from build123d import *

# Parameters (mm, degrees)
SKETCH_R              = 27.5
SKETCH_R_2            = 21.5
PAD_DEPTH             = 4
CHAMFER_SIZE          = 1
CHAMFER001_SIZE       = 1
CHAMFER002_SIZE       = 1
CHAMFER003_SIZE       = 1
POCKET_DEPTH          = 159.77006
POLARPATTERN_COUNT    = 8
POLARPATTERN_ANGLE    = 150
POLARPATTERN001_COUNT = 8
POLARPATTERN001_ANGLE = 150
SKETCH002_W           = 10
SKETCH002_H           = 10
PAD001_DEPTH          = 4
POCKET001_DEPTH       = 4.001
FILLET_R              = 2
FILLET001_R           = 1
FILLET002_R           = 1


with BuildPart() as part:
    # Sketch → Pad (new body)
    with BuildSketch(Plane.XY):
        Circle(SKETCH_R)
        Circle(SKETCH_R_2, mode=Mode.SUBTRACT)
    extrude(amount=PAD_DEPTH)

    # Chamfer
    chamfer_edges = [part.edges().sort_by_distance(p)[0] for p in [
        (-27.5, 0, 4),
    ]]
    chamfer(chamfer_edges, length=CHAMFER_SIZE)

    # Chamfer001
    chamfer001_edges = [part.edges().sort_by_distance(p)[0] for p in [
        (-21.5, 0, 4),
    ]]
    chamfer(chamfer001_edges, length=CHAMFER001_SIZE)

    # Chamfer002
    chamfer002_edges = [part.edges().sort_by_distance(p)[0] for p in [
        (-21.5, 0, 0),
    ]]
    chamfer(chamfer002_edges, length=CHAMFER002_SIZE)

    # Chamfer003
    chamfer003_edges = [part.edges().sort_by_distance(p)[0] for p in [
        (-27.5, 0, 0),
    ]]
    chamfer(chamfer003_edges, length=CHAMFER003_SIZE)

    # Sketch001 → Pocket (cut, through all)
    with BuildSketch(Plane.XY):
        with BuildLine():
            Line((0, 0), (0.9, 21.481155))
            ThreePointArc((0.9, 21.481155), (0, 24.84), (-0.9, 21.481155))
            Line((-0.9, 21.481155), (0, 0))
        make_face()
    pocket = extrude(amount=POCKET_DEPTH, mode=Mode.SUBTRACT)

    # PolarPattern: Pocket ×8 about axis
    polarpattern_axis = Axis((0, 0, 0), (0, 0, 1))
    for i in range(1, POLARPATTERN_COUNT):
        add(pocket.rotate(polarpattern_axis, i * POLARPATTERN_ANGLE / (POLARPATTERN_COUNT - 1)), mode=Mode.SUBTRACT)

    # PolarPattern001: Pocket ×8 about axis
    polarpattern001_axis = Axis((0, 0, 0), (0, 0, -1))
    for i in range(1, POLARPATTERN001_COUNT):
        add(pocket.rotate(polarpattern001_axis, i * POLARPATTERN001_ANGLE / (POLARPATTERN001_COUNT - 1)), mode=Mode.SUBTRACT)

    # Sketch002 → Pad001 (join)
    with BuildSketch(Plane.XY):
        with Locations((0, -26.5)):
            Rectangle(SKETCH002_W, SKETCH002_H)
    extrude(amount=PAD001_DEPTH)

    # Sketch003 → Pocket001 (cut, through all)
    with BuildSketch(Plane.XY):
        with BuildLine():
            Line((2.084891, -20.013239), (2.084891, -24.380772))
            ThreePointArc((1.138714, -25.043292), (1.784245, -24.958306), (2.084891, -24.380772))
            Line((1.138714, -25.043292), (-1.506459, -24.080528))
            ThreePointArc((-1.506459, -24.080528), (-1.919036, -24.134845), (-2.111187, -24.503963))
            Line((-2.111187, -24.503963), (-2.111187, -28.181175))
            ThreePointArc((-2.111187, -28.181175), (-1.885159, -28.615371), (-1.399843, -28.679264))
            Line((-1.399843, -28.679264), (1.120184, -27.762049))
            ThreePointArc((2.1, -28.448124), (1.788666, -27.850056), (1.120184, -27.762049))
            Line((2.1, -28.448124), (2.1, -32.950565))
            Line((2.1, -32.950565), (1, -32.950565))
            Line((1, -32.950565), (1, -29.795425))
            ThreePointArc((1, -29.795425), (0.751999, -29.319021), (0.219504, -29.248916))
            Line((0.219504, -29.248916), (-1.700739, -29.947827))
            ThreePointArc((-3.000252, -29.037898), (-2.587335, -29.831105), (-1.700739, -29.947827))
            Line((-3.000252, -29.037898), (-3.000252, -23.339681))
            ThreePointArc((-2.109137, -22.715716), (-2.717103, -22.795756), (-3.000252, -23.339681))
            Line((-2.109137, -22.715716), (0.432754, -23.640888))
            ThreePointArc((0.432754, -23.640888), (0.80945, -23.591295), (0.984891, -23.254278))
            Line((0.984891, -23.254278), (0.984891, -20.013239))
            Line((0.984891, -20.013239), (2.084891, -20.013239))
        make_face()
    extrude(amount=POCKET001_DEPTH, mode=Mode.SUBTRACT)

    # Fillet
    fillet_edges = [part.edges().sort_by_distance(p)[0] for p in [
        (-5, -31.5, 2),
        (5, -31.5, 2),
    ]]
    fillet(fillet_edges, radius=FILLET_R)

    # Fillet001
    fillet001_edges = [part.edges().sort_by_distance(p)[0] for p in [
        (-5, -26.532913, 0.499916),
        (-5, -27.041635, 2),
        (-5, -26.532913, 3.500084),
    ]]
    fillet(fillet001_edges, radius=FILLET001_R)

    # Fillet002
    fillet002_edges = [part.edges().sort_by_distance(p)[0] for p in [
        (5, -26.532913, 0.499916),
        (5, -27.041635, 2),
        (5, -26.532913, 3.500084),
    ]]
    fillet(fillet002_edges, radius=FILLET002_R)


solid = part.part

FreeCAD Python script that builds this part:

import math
import FreeCAD as App
import Part
import Sketcher
from FreeCAD import Vector
Q = App.Units.Quantity


def edges_at(feature, points):
    """Names of the edges that pass closest to the given points."""
    edges = feature.Shape.Edges
    near = lambda p: min(range(len(edges)), key=lambda i: edges[i].distToShape(Part.Vertex(*p))[0])
    return sorted({f"Edge{near(p) + 1}" for p in points})

doc = App.newDocument("Part")
params = doc.addObject("Spreadsheet::Sheet", "Params")
for row, (alias, value) in enumerate([
    ("sketch1_diameter", "55 mm"),
    ("sketch1_diameter2", "43 mm"),
    ("pad1_length", "4 mm"),
    ("chamfer_size", "1 mm"),
    ("chamfer2_size", "1 mm"),
    ("chamfer3_size", "1 mm"),
    ("chamfer4_size", "1 mm"),
    ("sketch2_radius", "1.8 mm"),
    ("sketch2_length", "21.5 mm"),
    ("sketch3_width", "10 mm"),
    ("pad2_length", "4 mm"),
    ("sketch4_width", "1.1 mm"),
    ("fillet_radius", "2 mm"),
    ("fillet2_radius", "1 mm"),
    ("fillet3_radius", "1 mm"),
], start=1):
    params.set(f"A{row}", alias)
    params.set(f"B{row}", "=" + value)
    params.setAlias(f"B{row}", alias)

body = doc.addObject("PartDesign::Body", "Body")

# Sketch on XY plane
sketch1 = doc.addObject("Sketcher::SketchObject", "Sketch")
body.addObject(sketch1)
sketch1.AttachmentSupport = (doc.XY_Plane, [""])
sketch1.MapMode = "FlatFace"
sketch1.addGeometry([
    Part.Circle(Vector(0, 0, 0), Vector(0, 0, 1), 27.5),
    Part.Circle(Vector(0, 0, 0), Vector(0, 0, 1), 21.5),
], False)
sketch1.addConstraint([
    Sketcher.Constraint("Coincident", 0, 3, -1, 1),
    Sketcher.Constraint("Coincident", 1, 3, -1, 1),
    Sketcher.Constraint("Diameter", 0, 55.0),
    Sketcher.Constraint("Diameter", 1, 43.0),
])
sketch1.setExpression("Constraints[2]", "Params.sketch1_diameter")
sketch1.setExpression("Constraints[3]", "Params.sketch1_diameter2")
pad1 = doc.addObject("PartDesign::Pad", "Pad")
body.addObject(pad1)
pad1.Profile = sketch1
pad1.setExpression("Length", "Params.pad1_length")
doc.recompute()

chamfer = doc.addObject("PartDesign::Chamfer", "Chamfer")
body.addObject(chamfer)
chamfer.Base = (pad1, edges_at(pad1, [(-27.5, 0, 4)]))
chamfer.setExpression("Size", "Params.chamfer_size")
doc.recompute()

chamfer2 = doc.addObject("PartDesign::Chamfer", "Chamfer001")
body.addObject(chamfer2)
chamfer2.Base = (chamfer, edges_at(chamfer, [(-21.5, 0, 4)]))
chamfer2.setExpression("Size", "Params.chamfer2_size")
doc.recompute()

chamfer3 = doc.addObject("PartDesign::Chamfer", "Chamfer002")
body.addObject(chamfer3)
chamfer3.Base = (chamfer2, edges_at(chamfer2, [(-21.5, 0, 0)]))
chamfer3.setExpression("Size", "Params.chamfer3_size")
doc.recompute()

chamfer4 = doc.addObject("PartDesign::Chamfer", "Chamfer003")
body.addObject(chamfer4)
chamfer4.Base = (chamfer3, edges_at(chamfer3, [(-27.5, 0, 0)]))
chamfer4.setExpression("Size", "Params.chamfer4_size")

# Sketch on XY plane
sketch2 = doc.addObject("Sketcher::SketchObject", "Sketch001")
body.addObject(sketch2)
sketch2.AttachmentSupport = (doc.XY_Plane, [""])
sketch2.MapMode = "FlatFace"
sketch2.addGeometry([
    Part.LineSegment(Vector(0, 0, 0), Vector(0.9, 21.481155, 0)),
    Part.ArcOfCircle(Part.Circle(Vector(0, 23.04, 0), Vector(0, 0, 1), 1.8), math.radians(-59.999994), math.radians(239.999994)),
    Part.LineSegment(Vector(-0.9, 21.481155, 0), Vector(0, 0, 0)),
], False)
sketch2.addConstraint([
    Sketcher.Constraint("Coincident", 0, 2, 1, 1),
    Sketcher.Constraint("Coincident", 1, 2, 2, 1),
    Sketcher.Constraint("Coincident", 2, 2, 0, 1),
    Sketcher.Constraint("Coincident", 2, 2, -1, 1),
    Sketcher.Constraint("Symmetric", 0, 2, 1, 2, -2),
    Sketcher.Constraint("Radius", 1, 1.8),
    Sketcher.Constraint("Distance", 0, 21.5),
    Sketcher.Constraint("DistanceX", -1, 1, 0, 2, 0.9),
])
sketch2.setExpression("Constraints[5]", "Params.sketch2_radius")
sketch2.setExpression("Constraints[6]", "Params.sketch2_length")
pocket1 = doc.addObject("PartDesign::Pocket", "Pocket")
body.addObject(pocket1)
pocket1.Profile = sketch2
pocket1.Type = "ThroughAll"
pocket1.Reversed = True
doc.recompute()

polarpattern = doc.addObject("PartDesign::PolarPattern", "PolarPattern")
body.addObject(polarpattern)
polarpattern.Originals = [pocket1]
polarpattern.Axis = (doc.Z_Axis, [""])
polarpattern.Angle = 150
polarpattern.Occurrences = 8
body.Tip = polarpattern
doc.recompute()

polarpattern2 = doc.addObject("PartDesign::PolarPattern", "PolarPattern001")
body.addObject(polarpattern2)
polarpattern2.Originals = [pocket1]
polarpattern2.Axis = (doc.Z_Axis, [""])
polarpattern2.Angle = 150
polarpattern2.Occurrences = 8
polarpattern2.Reversed = True
body.Tip = polarpattern2

# Sketch on XY plane
sketch3 = doc.addObject("Sketcher::SketchObject", "Sketch002")
body.addObject(sketch3)
sketch3.AttachmentSupport = (doc.XY_Plane, [""])
sketch3.MapMode = "FlatFace"
sketch3.addGeometry([
    Part.LineSegment(Vector(-5, -21.5, 0), Vector(-5, -31.5, 0)),
    Part.LineSegment(Vector(-5, -31.5, 0), Vector(5, -31.5, 0)),
    Part.LineSegment(Vector(5, -31.5, 0), Vector(5, -21.5, 0)),
    Part.LineSegment(Vector(5, -21.5, 0), Vector(-5, -21.5, 0)),
], False)
sketch3.addConstraint([
    Sketcher.Constraint("Coincident", 0, 2, 1, 1),
    Sketcher.Constraint("Coincident", 1, 2, 2, 1),
    Sketcher.Constraint("Coincident", 2, 2, 3, 1),
    Sketcher.Constraint("Coincident", 3, 2, 0, 1),
    Sketcher.Constraint("Vertical", 0),
    Sketcher.Constraint("Horizontal", 1),
    Sketcher.Constraint("Vertical", 2),
    Sketcher.Constraint("Horizontal", 3),
    Sketcher.Constraint("Equal", 3, 0),
    Sketcher.Constraint("DistanceX", 1, 1, 1, 2, 10.0),
    Sketcher.Constraint("DistanceX", 0, 2, -1, 1, 5.0),
    Sketcher.Constraint("DistanceY", 0, 2, -1, 1, 31.5),
])
sketch3.setExpression("Constraints[9]", "Params.sketch3_width")
pad2 = doc.addObject("PartDesign::Pad", "Pad001")
body.addObject(pad2)
pad2.Profile = sketch3
pad2.setExpression("Length", "Params.pad2_length")

# Sketch on XY plane
sketch4 = doc.addObject("Sketcher::SketchObject", "Sketch003")
body.addObject(sketch4)
sketch4.AttachmentSupport = (doc.XY_Plane, [""])
sketch4.MapMode = "FlatFace"
sketch4.addGeometry([
    Part.LineSegment(Vector(2.084891, -24.380772, 0), Vector(2.084891, -20.013239, 0)),  # 0
    Part.LineSegment(Vector(2.084891, -20.013239, 0), Vector(0.984891, -20.013239, 0)),  # 1
    Part.LineSegment(Vector(0.984891, -20.013239, 0), Vector(0.984891, -23.254278, 0)),  # 2
    Part.ArcOfCircle(Part.Circle(Vector(0.573468, -23.254277, 0), Vector(0, 0, 1), 0.411423), math.radians(-109.999889), math.radians(-0.00018)),  # 3
    Part.LineSegment(Vector(0.432754, -23.640888, 0), Vector(-2.109137, -22.715716, 0)),  # 4
    Part.ArcOfCircle(Part.Circle(Vector(-2.336242, -23.339681, 0), Vector(0, 0, 1), 0.66401), math.radians(69.999923), math.radians(180.000039)),  # 5
    Part.LineSegment(Vector(-3.000252, -23.339681, 0), Vector(-3.000252, -29.037898, 0)),  # 6
    Part.ArcOfCircle(Part.Circle(Vector(-2.031927, -29.037899, 0), Vector(0, 0, 1), 0.968325), math.radians(179.999933), math.radians(290.000055)),  # 7
    Part.LineSegment(Vector(-1.700739, -29.947827, 0), Vector(0.219504, -29.248916, 0)),  # 8
    Part.ArcOfCircle(Part.Circle(Vector(0.418416, -29.795427, 0), Vector(0, 0, 1), 0.581584), math.radians(0.000157), math.radians(109.999861)),  # 9
    Part.LineSegment(Vector(1, -29.795425, 0), Vector(1, -32.950565, 0)),  # 10
    Part.LineSegment(Vector(1, -32.950565, 0), Vector(2.1, -32.950565, 0)),  # 11
    Part.LineSegment(Vector(2.1, -32.950565, 0), Vector(2.1, -28.448124, 0)),  # 12
    Part.ArcOfCircle(Part.Circle(Vector(1.369895, -28.448123, 0), Vector(0, 0, 1), 0.730105), math.radians(-0.000082), math.radians(110.000047)),  # 13
    Part.LineSegment(Vector(1.120184, -27.762049, 0), Vector(-1.399843, -28.679264, 0)),  # 14
    Part.ArcOfCircle(Part.Circle(Vector(-1.581132, -28.181175, 0), Vector(0, 0, 1), 0.530055), math.radians(179.999948), math.radians(289.99999)),  # 15
    Part.LineSegment(Vector(-2.111187, -28.181175, 0), Vector(-2.111187, -24.503963, 0)),  # 16
    Part.ArcOfCircle(Part.Circle(Vector(-1.660576, -24.503964, 0), Vector(0, 0, 1), 0.450611), math.radians(70.000062), math.radians(179.999925)),  # 17
    Part.LineSegment(Vector(-1.506459, -24.080528, 0), Vector(1.138714, -25.043292, 0)),  # 18
    Part.ArcOfCircle(Part.Circle(Vector(1.379851, -24.380771, 0), Vector(0, 0, 1), 0.70504), math.radians(-109.999926), math.radians(-0.000096)),  # 19
], False)
sketch4.addConstraint([
    Sketcher.Constraint("Coincident", 0, 2, 1, 1),
    Sketcher.Constraint("Coincident", 1, 2, 2, 1),
    Sketcher.Constraint("Coincident", 2, 2, 3, 2),
    Sketcher.Constraint("Tangent", 3, 1, 4, 1),
    Sketcher.Constraint("Tangent", 4, 2, 5, 1),
    Sketcher.Constraint("Tangent", 5, 2, 6, 1),
    Sketcher.Constraint("Tangent", 6, 2, 7, 1),
    Sketcher.Constraint("Tangent", 7, 2, 8, 1),
    Sketcher.Constraint("Coincident", 8, 2, 9, 2),
    Sketcher.Constraint("Coincident", 9, 1, 10, 1),
    Sketcher.Constraint("Coincident", 10, 2, 11, 1),
    Sketcher.Constraint("Coincident", 11, 2, 12, 1),
    Sketcher.Constraint("Tangent", 12, 2, 13, 1),
    Sketcher.Constraint("Tangent", 13, 2, 14, 1),
    Sketcher.Constraint("Tangent", 14, 2, 15, 2),
    Sketcher.Constraint("Tangent", 15, 1, 16, 1),
    Sketcher.Constraint("Tangent", 16, 2, 17, 2),
    Sketcher.Constraint("Tangent", 17, 1, 18, 1),
    Sketcher.Constraint("Tangent", 18, 2, 19, 1),
    Sketcher.Constraint("Tangent", 19, 2, 0, 1),
    Sketcher.Constraint("Vertical", 0),
    Sketcher.Constraint("Horizontal", 1),
    Sketcher.Constraint("Vertical", 2),
    Sketcher.Constraint("Vertical", 6),
    Sketcher.Constraint("Vertical", 10),
    Sketcher.Constraint("Horizontal", 11),
    Sketcher.Constraint("Vertical", 12),
    Sketcher.Constraint("Vertical", 16),
    Sketcher.Constraint("Parallel", 8, 14),
    Sketcher.Constraint("Parallel", 4, 18),
    Sketcher.Constraint("Horizontal", 3, 3, 2, 2),
    Sketcher.Constraint("Equal", 1, 11),
    Sketcher.Constraint("Angle", 4, Q("160.000013 deg")),
    Sketcher.Constraint("Angle", 8, Q("19.999992 deg")),
    Sketcher.Constraint("DistanceX", 1, 2, 1, 1, 1.1),
    Sketcher.Constraint("DistanceX", -1, 1, 9, 1, 1.0),
    Sketcher.Constraint("Radius", 5, 0.66401),
    Sketcher.Constraint("Radius", 17, 0.450611),
    Sketcher.Constraint("Radius", 19, 0.70504),
    Sketcher.Constraint("Radius", 3, 0.411423),
    Sketcher.Constraint("Radius", 7, 0.968325),
    Sketcher.Constraint("Radius", 9, 0.581584),
    Sketcher.Constraint("Radius", 13, 0.730105),
    Sketcher.Constraint("Radius", 15, 0.530055),
    Sketcher.Constraint("DistanceY", 2, 2, 2, 1, 3.241039),
    Sketcher.Constraint("DistanceY", 10, 2, 10, 1, 3.15514),
    Sketcher.Constraint("DistanceY", 12, 1, 12, 2, 4.502441),
    Sketcher.Constraint("DistanceY", 7, 3, -1, 1, 29.037899),
    Sketcher.Constraint("DistanceX", 15, 3, 3, 3, 2.1546),
    Sketcher.Constraint("DistanceY", 15, 3, 3, 3, 4.926899),
    Sketcher.Constraint("DistanceY", 7, 2, 9, 3, 0.1524),
    Sketcher.Constraint("DistanceY", 7, 2, 9, 1, 0.152402),
    Sketcher.Constraint("Distance", 8, 2.04348),
    Sketcher.Constraint("DistanceY", 0, 1, 0, 2, 4.367533),
    Sketcher.Constraint("DistanceY", 6, 2, 6, 1, 5.698217),
])
sketch4.setExpression("Constraints[34]", "Params.sketch4_width")
pocket2 = doc.addObject("PartDesign::Pocket", "Pocket001")
body.addObject(pocket2)
pocket2.Profile = sketch4
pocket2.Type = "ThroughAll"
pocket2.Reversed = True
doc.recompute()

fillet = doc.addObject("PartDesign::Fillet", "Fillet")
body.addObject(fillet)
fillet.Base = (pocket2, edges_at(pocket2, [(-5, -31.5, 2), (5, -31.5, 2)]))
fillet.setExpression("Radius", "Params.fillet_radius")
doc.recompute()

fillet2 = doc.addObject("PartDesign::Fillet", "Fillet001")
body.addObject(fillet2)
fillet2.Base = (fillet, edges_at(fillet, [(-5, -26.533, 0.5), (-5, -27.042, 2), (-5, -26.533, 3.5)]))
fillet2.setExpression("Radius", "Params.fillet2_radius")
doc.recompute()

fillet3 = doc.addObject("PartDesign::Fillet", "Fillet002")
body.addObject(fillet3)
fillet3.Base = (fillet2, edges_at(fillet2, [(5, -26.533, 0.5), (5, -27.042, 2), (5, -26.533, 3.5)]))
fillet3.setExpression("Radius", "Params.fillet3_radius")

doc.recompute()
